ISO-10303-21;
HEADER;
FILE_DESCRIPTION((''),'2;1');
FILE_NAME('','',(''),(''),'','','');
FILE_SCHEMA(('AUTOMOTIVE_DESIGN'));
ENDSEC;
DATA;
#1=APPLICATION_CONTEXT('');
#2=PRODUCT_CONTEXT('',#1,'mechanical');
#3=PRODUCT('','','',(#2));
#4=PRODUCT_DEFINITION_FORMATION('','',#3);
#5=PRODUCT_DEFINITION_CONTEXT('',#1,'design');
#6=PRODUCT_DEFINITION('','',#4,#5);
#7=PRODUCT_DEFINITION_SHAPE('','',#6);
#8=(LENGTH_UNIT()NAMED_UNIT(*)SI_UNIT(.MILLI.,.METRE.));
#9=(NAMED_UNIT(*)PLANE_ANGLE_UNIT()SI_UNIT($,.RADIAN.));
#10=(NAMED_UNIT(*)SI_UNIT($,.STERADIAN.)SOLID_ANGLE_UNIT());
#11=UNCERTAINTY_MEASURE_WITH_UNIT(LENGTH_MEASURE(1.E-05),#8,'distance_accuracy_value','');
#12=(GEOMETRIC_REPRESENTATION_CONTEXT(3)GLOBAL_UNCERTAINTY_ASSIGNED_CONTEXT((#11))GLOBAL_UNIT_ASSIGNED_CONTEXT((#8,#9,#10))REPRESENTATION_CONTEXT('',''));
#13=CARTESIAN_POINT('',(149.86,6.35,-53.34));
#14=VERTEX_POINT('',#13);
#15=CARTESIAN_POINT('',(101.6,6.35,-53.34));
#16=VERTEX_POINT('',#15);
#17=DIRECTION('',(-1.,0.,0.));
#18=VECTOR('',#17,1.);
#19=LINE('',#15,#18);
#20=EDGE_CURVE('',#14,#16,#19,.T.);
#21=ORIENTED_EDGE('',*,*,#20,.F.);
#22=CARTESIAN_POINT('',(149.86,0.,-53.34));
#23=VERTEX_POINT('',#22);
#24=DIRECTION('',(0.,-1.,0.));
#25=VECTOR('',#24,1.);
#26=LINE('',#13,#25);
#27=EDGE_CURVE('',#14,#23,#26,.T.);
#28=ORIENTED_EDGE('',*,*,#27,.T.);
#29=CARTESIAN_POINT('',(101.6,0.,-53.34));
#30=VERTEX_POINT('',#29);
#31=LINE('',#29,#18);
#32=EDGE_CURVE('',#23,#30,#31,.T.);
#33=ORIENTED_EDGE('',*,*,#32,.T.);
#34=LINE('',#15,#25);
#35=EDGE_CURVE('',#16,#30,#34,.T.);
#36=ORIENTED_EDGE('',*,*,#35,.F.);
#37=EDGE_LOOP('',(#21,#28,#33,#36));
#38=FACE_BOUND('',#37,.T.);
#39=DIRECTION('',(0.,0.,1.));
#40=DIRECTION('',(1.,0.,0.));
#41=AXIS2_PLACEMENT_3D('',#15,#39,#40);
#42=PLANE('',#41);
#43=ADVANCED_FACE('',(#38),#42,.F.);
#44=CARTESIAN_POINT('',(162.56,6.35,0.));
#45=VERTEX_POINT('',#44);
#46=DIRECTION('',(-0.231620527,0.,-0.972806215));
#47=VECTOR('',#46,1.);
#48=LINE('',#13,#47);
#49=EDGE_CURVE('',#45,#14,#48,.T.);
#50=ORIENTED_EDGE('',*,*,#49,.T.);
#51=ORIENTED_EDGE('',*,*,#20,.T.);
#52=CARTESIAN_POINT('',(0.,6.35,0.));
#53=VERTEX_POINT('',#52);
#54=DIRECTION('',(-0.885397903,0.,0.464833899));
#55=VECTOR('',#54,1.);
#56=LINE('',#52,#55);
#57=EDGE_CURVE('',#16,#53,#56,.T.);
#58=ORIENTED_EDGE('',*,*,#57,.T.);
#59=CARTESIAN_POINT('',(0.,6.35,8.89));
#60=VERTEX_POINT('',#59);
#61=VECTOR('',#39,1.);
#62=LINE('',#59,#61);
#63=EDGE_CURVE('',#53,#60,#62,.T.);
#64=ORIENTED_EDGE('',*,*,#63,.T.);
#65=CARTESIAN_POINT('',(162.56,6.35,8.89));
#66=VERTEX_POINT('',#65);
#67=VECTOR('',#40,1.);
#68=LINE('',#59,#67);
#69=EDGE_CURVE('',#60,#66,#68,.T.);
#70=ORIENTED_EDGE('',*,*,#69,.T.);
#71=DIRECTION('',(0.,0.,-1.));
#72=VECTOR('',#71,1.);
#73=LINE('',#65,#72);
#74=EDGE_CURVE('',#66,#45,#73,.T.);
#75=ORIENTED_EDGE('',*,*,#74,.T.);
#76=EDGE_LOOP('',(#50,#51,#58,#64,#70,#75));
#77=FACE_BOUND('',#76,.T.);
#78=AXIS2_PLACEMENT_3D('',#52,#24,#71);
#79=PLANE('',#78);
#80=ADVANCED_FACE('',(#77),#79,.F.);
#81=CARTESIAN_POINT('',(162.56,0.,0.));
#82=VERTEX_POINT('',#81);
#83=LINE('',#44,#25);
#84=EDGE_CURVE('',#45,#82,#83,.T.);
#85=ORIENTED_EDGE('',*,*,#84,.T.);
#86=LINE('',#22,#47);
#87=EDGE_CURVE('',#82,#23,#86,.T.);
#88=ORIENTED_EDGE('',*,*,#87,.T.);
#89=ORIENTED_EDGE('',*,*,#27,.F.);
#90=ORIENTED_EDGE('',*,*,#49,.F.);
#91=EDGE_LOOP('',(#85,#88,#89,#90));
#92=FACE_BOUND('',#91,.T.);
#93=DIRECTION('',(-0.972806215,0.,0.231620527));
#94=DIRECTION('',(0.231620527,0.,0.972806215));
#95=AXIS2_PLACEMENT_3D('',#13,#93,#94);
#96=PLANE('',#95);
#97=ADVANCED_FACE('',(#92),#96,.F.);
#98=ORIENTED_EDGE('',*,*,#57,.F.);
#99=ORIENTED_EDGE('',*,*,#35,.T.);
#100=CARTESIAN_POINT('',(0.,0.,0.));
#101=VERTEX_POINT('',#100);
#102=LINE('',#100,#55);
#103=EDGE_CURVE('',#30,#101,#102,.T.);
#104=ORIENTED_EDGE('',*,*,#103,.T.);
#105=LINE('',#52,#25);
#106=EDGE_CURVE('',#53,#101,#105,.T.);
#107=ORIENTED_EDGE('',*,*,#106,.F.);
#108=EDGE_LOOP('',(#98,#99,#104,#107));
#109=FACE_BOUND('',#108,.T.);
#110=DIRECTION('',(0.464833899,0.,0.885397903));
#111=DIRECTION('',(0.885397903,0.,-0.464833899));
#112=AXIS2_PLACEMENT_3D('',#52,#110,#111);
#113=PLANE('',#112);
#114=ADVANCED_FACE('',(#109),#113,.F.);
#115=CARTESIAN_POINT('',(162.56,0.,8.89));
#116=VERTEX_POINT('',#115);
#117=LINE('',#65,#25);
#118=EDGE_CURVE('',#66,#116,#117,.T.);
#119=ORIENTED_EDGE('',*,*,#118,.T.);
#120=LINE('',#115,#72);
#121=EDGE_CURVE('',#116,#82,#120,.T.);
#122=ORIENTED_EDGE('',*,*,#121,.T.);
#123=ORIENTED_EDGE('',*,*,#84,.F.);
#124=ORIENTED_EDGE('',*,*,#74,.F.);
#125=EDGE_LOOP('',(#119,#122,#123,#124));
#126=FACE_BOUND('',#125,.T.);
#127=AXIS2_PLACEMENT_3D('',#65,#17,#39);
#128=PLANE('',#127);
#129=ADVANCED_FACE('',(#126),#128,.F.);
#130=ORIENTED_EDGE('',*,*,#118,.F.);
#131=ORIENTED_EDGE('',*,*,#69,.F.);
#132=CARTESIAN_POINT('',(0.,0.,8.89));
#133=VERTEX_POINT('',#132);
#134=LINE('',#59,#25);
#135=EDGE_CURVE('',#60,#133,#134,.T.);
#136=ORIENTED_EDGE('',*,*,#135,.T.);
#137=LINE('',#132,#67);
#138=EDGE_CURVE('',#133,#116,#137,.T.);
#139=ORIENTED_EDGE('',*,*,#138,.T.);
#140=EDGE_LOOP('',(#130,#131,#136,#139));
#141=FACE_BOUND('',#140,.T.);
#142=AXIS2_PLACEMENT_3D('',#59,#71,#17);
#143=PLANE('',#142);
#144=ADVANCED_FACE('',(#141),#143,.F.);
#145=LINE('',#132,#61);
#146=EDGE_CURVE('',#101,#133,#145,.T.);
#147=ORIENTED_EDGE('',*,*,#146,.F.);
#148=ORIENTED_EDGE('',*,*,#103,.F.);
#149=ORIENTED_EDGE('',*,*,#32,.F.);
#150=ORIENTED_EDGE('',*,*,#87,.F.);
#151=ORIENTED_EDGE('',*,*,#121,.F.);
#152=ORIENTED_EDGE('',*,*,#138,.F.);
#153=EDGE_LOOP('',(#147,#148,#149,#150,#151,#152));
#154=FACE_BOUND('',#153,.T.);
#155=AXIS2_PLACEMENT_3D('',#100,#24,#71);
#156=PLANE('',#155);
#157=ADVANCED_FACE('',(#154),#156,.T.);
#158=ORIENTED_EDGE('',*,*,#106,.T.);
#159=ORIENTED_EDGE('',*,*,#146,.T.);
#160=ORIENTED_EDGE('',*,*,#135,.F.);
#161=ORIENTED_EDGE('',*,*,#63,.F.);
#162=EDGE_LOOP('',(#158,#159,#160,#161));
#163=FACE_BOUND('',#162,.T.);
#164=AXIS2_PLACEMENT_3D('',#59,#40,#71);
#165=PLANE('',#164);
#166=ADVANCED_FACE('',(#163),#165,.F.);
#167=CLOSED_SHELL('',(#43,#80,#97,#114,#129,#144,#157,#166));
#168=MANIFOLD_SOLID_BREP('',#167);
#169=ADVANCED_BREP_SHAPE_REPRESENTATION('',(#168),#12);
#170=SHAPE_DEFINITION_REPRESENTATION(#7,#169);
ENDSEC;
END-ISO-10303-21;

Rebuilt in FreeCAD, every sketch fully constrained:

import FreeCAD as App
import Part
import Sketcher

V = App.Vector
Q = App.Units.Quantity

doc = App.newDocument("Part")
params = doc.addObject("Spreadsheet::Sheet", "Params")
for row, (alias, value) in enumerate([
    ("sketch1_width", "6.4 in"),
    ("sketch1_width2", "1.9 in"),
    ("sketch1_height", "0.35 in"),
    ("pad1_length", "0.25 in"),
], start=1):
    params.set(f"A{row}", alias)
    params.set(f"B{row}", "=" + value)
    params.setAlias(f"B{row}", alias)

body = doc.addObject("PartDesign::Body", "Body")

sketch1 = doc.addObject("Sketcher::SketchObject", "Sketch")
body.addObject(sketch1)
sketch1.AttachmentSupport = (doc.XZ_Plane, [""])
sketch1.MapMode = "FlatFace"
sketch1.addGeometry([
    Part.LineSegment(V(101.6, -53.34, 0), V(0, 0, 0)),
    Part.LineSegment(V(0, 0, 0), V(0, 8.89, 0)),
    Part.LineSegment(V(0, 8.89, 0), V(162.56, 8.89, 0)),
    Part.LineSegment(V(162.56, 8.89, 0), V(162.56, 0, 0)),
    Part.LineSegment(V(162.56, 0, 0), V(149.86, -53.34, 0)),
    Part.LineSegment(V(149.86, -53.34, 0), V(101.6, -53.34, 0)),
], False)
sketch1.addConstraint([
    Sketcher.Constraint("Coincident", 0, 2, 1, 1),
    Sketcher.Constraint("Coincident", 1, 2, 2, 1),
    Sketcher.Constraint("Coincident", 2, 2, 3, 1),
    Sketcher.Constraint("Coincident", 3, 2, 4, 1),
    Sketcher.Constraint("Coincident", 4, 2, 5, 1),
    Sketcher.Constraint("Coincident", 5, 2, 0, 1),
    Sketcher.Constraint("Vertical", 1),
    Sketcher.Constraint("Horizontal", 2),
    Sketcher.Constraint("Vertical", 3),
    Sketcher.Constraint("Horizontal", 5),
    Sketcher.Constraint("Coincident", 0, 2, -1, 1),
    Sketcher.Constraint("PointOnObject", 3, 2, -1),
    Sketcher.Constraint("DistanceX", 2, 1, 2, 2, Q("6.4 in")),
    Sketcher.Constraint("DistanceX", 5, 2, 5, 1, Q("1.9 in")),
    Sketcher.Constraint("DistanceX", -1, 1, 5, 2, Q("4 in")),
    Sketcher.Constraint("DistanceY", 1, 1, 1, 2, Q("0.35 in")),
    Sketcher.Constraint("DistanceY", 4, 2, -1, 1, Q("2.1 in")),
])
sketch1.setExpression("Constraints[12]", "Params.sketch1_width")
sketch1.setExpression("Constraints[13]", "Params.sketch1_width2")
sketch1.setExpression("Constraints[15]", "Params.sketch1_height")
pad1 = doc.addObject("PartDesign::Pad", "Pad")
body.addObject(pad1)
pad1.Profile = sketch1
pad1.setExpression("Length", "Params.pad1_length")
pad1.Reversed = True

doc.recompute()
